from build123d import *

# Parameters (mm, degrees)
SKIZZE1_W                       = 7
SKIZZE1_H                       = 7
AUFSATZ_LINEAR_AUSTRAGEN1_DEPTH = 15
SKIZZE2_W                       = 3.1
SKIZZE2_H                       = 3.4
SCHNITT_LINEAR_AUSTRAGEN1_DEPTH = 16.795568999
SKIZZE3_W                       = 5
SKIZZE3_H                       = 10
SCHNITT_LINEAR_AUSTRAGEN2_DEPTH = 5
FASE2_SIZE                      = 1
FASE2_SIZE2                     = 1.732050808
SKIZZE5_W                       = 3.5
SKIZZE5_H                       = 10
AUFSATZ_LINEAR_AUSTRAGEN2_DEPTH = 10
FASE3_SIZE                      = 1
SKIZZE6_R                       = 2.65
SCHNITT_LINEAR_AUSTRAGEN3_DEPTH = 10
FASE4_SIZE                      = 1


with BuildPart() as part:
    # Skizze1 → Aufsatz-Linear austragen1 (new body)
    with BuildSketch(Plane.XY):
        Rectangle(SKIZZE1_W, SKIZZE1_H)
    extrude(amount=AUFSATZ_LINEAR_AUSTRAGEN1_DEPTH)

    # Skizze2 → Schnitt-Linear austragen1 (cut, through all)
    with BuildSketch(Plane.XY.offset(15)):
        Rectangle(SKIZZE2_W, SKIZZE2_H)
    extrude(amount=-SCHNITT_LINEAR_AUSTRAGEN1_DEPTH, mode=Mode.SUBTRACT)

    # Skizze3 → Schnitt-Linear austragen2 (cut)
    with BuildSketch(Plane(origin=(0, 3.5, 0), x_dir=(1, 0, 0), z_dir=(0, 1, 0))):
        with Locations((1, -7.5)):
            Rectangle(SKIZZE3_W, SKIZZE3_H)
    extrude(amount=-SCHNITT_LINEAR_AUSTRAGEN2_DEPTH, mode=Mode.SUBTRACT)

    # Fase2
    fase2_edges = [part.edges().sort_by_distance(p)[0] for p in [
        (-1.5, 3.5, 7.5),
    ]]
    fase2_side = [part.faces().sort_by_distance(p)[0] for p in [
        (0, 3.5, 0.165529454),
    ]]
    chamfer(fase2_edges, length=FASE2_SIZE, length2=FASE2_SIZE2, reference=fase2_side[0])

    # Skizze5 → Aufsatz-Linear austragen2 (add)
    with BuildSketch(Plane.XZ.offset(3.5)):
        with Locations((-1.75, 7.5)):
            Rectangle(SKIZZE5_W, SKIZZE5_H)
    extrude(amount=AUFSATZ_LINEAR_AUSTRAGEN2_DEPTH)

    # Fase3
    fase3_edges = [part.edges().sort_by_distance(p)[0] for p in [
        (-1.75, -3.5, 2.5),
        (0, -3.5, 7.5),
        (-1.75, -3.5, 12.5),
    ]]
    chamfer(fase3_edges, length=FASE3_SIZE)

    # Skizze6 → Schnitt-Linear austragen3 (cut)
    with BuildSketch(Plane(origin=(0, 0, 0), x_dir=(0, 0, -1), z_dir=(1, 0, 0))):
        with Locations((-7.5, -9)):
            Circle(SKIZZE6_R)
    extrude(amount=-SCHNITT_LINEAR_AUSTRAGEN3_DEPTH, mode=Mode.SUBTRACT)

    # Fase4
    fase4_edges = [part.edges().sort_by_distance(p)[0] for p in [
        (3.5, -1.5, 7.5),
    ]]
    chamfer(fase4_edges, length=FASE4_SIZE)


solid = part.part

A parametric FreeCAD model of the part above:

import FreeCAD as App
import Part
import Sketcher


def edges_at(feature, points):
    """Names of the edges that pass closest to the given points."""
    edges = feature.Shape.Edges
    near = lambda p: min(range(len(edges)), key=lambda i: edges[i].distToShape(Part.Vertex(*p))[0])
    return sorted({f"Edge{near(p) + 1}" for p in points})

doc = App.newDocument("Part")
params = doc.addObject("Spreadsheet::Sheet", "Params")
for row, (alias, value) in enumerate([
    ("sketch1_width", "7 mm"),
    ("pad1_length", "15 mm"),
    ("sketch2_width", "3.1 mm"),
    ("sketch2_height", "3.4 mm"),
    ("sketch3_width", "5 mm"),
    ("sketch3_height", "10 mm"),
    ("pocket2_length", "5 mm"),
    ("chamfer_size", "1 mm"),
    ("chamfer_size2", "1.732051 mm"),
    ("sketch4_height", "10 mm"),
    ("sketch4_width", "3.5 mm"),
    ("pad2_length", "10 mm"),
    ("chamfer2_size", "1 mm"),
    ("sketch5_diameter", "5.3 mm"),
    ("pocket3_length", "10 mm"),
    ("chamfer3_size", "1 mm"),
], start=1):
    params.set(f"A{row}", alias)
    params.set(f"B{row}", "=" + value)
    params.setAlias(f"B{row}", alias)

body = doc.addObject("PartDesign::Body", "Body")

# Sketch on XY plane
sketch1 = body.newObject("Sketcher::SketchObject", "Sketch")
sketch1.AttachmentSupport = (doc.getObject("XY_Plane"), [""])
sketch1.MapMode = "FlatFace"
sketch1.addGeometry([
    Part.LineSegment(App.Vector(-4, 4, 0), App.Vector(-4, -4, 0)),
    Part.LineSegment(App.Vector(-4, -4, 0), App.Vector(4, -4, 0)),
    Part.LineSegment(App.Vector(4, -4, 0), App.Vector(4, 4, 0)),
    Part.LineSegment(App.Vector(4, 4, 0), App.Vector(-4, 4, 0)),
], False)
sketch1.addConstraint([
    Sketcher.Constraint("Coincident", 0, 2, 1, 1),
    Sketcher.Constraint("Coincident", 1, 2, 2, 1),
    Sketcher.Constraint("Coincident", 2, 2, 3, 1),
    Sketcher.Constraint("Coincident", 3, 2, 0, 1),
    Sketcher.Constraint("Vertical", 0),
    Sketcher.Constraint("Horizontal", 1),
    Sketcher.Constraint("Vertical", 2),
    Sketcher.Constraint("Horizontal", 3),
    Sketcher.Constraint("Symmetric", 0, 2, 2, 2, -1, 1),
    Sketcher.Constraint("Equal", 3, 0),
    Sketcher.Constraint("DistanceX", 1, 1, 1, 2, 7.0),
])
sketch1.setExpression("Constraints[10]", "Params.sketch1_width")
pad1 = body.newObject("PartDesign::Pad", "Pad")
pad1.Profile = sketch1
pad1.setExpression("Length", "Params.pad1_length")

# Sketch on XY plane
sketch2 = body.newObject("Sketcher::SketchObject", "Sketch001")
sketch2.AttachmentSupport = (doc.getObject("XY_Plane"), [""])
sketch2.MapMode = "FlatFace"
sketch2.AttachmentOffset = App.Placement(App.Vector(0, 0, 15), App.Rotation())
sketch2.addGeometry([
    Part.LineSegment(App.Vector(-1.6, 1.7, 0), App.Vector(-1.6, -1.7, 0)),
    Part.LineSegment(App.Vector(-1.6, -1.7, 0), App.Vector(1.6, -1.7, 0)),
    Part.LineSegment(App.Vector(1.6, -1.7, 0), App.Vector(1.6, 1.7, 0)),
    Part.LineSegment(App.Vector(1.6, 1.7, 0), App.Vector(-1.6, 1.7, 0)),
], False)
sketch2.addConstraint([
    Sketcher.Constraint("Coincident", 0, 2, 1, 1),
    Sketcher.Constraint("Coincident", 1, 2, 2, 1),
    Sketcher.Constraint("Coincident", 2, 2, 3, 1),
    Sketcher.Constraint("Coincident", 3, 2, 0, 1),
    Sketcher.Constraint("Vertical", 0),
    Sketcher.Constraint("Horizontal", 1),
    Sketcher.Constraint("Vertical", 2),
    Sketcher.Constraint("Horizontal", 3),
    Sketcher.Constraint("Symmetric", 0, 2, 2, 2, -1, 1),
    Sketcher.Constraint("DistanceX", 1, 1, 1, 2, 3.1),
    Sketcher.Constraint("DistanceY", 0, 2, 0, 1, 3.4),
])
sketch2.setExpression("Constraints[9]", "Params.sketch2_width")
sketch2.setExpression("Constraints[10]", "Params.sketch2_height")
pocket1 = body.newObject("PartDesign::Pocket", "Pocket")
pocket1.Profile = sketch2
pocket1.Type = "ThroughAll"

# Sketch on XZ plane
sketch3 = body.newObject("Sketcher::SketchObject", "Sketch002")
sketch3.AttachmentSupport = (doc.getObject("XZ_Plane"), [""])
sketch3.MapMode = "FlatFace"
sketch3.AttachmentOffset = App.Placement(App.Vector(0, 0, -3.5), App.Rotation())
sketch3.addGeometry([
    Part.LineSegment(App.Vector(-2, 2, 0), App.Vector(-2, 12, 0)),
    Part.LineSegment(App.Vector(-2, 12, 0), App.Vector(4, 12, 0)),
    Part.LineSegment(App.Vector(4, 12, 0), App.Vector(4, 2, 0)),
    Part.LineSegment(App.Vector(4, 2, 0), App.Vector(-2, 2, 0)),
], False)
sketch3.addConstraint([
    Sketcher.Constraint("Coincident", 0, 2, 1, 1),
    Sketcher.Constraint("Coincident", 1, 2, 2, 1),
    Sketcher.Constraint("Coincident", 2, 2, 3, 1),
    Sketcher.Constraint("Coincident", 3, 2, 0, 1),
    Sketcher.Constraint("Vertical", 0),
    Sketcher.Constraint("Horizontal", 1),
    Sketcher.Constraint("Vertical", 2),
    Sketcher.Constraint("Horizontal", 3),
    Sketcher.Constraint("DistanceX", 1, 1, 1, 2, 5.0),
    Sketcher.Constraint("DistanceY", 0, 1, 0, 2, 10.0),
    Sketcher.Constraint("DistanceX", 0, 2, -1, 1, 1.5),
    Sketcher.Constraint("DistanceY", -1, 1, 0, 2, 12.5),
])
sketch3.setExpression("Constraints[8]", "Params.sketch3_width")
sketch3.setExpression("Constraints[9]", "Params.sketch3_height")
pocket2 = body.newObject("PartDesign::Pocket", "Pocket001")
pocket2.Profile = sketch3
pocket2.setExpression("Length", "Params.pocket2_length")
pocket2.Reversed = True
doc.recompute()

chamfer = body.newObject("PartDesign::Chamfer", "Chamfer")
chamfer.Base = (pocket2, edges_at(pocket2, [(-1.5, 3.5, 7.5)]))
chamfer.ChamferType = "Two distances"
chamfer.setExpression("Size", "Params.chamfer_size")
chamfer.setExpression("Size2", "Params.chamfer_size2")

# Sketch on XZ plane
sketch4 = body.newObject("Sketcher::SketchObject", "Sketch003")
sketch4.AttachmentSupport = (doc.getObject("XZ_Plane"), [""])
sketch4.MapMode = "FlatFace"
sketch4.AttachmentOffset = App.Placement(App.Vector(0, 0, 3.5), App.Rotation())
sketch4.addGeometry([
    Part.LineSegment(App.Vector(-3.5, 12.5, 0), App.Vector(-3.5, 2.5, 0)),
    Part.LineSegment(App.Vector(-3.5, 2.5, 0), App.Vector(0, 2.5, 0)),
    Part.LineSegment(App.Vector(0, 2.5, 0), App.Vector(0, 12.5, 0)),
    Part.LineSegment(App.Vector(0, 12.5, 0), App.Vector(-3.5, 12.5, 0)),
], False)
sketch4.addConstraint([
    Sketcher.Constraint("Coincident", 0, 2, 1, 1),
    Sketcher.Constraint("Coincident", 1, 2, 2, 1),
    Sketcher.Constraint("Coincident", 2, 2, 3, 1),
    Sketcher.Constraint("Coincident", 3, 2, 0, 1),
    Sketcher.Constraint("Vertical", 0),
    Sketcher.Constraint("Horizontal", 1),
    Sketcher.Constraint("Vertical", 2),
    Sketcher.Constraint("Horizontal", 3),
    Sketcher.Constraint("PointOnObject", 1, 2, -2),
    Sketcher.Constraint("DistanceY", 0, 2, 0, 1, 10.0),
    Sketcher.Constraint("DistanceX", 1, 1, 1, 2, 3.5),
    Sketcher.Constraint("DistanceY", -1, 1, 0, 2, 2.5),
])
sketch4.setExpression("Constraints[9]", "Params.sketch4_height")
sketch4.setExpression("Constraints[10]", "Params.sketch4_width")
pad2 = body.newObject("PartDesign::Pad", "Pad001")
pad2.Profile = sketch4
pad2.setExpression("Length", "Params.pad2_length")
doc.recompute()

chamfer2 = body.newObject("PartDesign::Chamfer", "Chamfer001")
chamfer2.Base = (pad2, edges_at(pad2, [(-1.75, -3.5, 2.5), (0, -3.5, 7.5), (-1.75, -3.5, 12.5)]))
chamfer2.setExpression("Size", "Params.chamfer2_size")

# Sketch on YZ plane
sketch5 = body.newObject("Sketcher::SketchObject", "Sketch004")
sketch5.AttachmentSupport = (doc.getObject("YZ_Plane"), [""])
sketch5.MapMode = "FlatFace"
sketch5.addGeometry(Part.Circle(App.Vector(-9, 7.5, 0), App.Vector(0, 0, 1), 2.6), False)
sketch5.addConstraint([
    Sketcher.Constraint("Diameter", 0, 5.3),
    Sketcher.Constraint("DistanceX", 0, 3, -1, 1, 9.0),
    Sketcher.Constraint("DistanceY", -1, 1, 0, 3, 7.5),
])
sketch5.setExpression("Constraints[0]", "Params.sketch5_diameter")
pocket3 = body.newObject("PartDesign::Pocket", "Pocket002")
pocket3.Profile = sketch5
pocket3.setExpression("Length", "Params.pocket3_length")
doc.recompute()

chamfer3 = body.newObject("PartDesign::Chamfer", "Chamfer002")
chamfer3.Base = (pocket3, edges_at(pocket3, [(3.5, -1.5, 7.5)]))
chamfer3.setExpression("Size", "Params.chamfer3_size")

doc.recompute()
